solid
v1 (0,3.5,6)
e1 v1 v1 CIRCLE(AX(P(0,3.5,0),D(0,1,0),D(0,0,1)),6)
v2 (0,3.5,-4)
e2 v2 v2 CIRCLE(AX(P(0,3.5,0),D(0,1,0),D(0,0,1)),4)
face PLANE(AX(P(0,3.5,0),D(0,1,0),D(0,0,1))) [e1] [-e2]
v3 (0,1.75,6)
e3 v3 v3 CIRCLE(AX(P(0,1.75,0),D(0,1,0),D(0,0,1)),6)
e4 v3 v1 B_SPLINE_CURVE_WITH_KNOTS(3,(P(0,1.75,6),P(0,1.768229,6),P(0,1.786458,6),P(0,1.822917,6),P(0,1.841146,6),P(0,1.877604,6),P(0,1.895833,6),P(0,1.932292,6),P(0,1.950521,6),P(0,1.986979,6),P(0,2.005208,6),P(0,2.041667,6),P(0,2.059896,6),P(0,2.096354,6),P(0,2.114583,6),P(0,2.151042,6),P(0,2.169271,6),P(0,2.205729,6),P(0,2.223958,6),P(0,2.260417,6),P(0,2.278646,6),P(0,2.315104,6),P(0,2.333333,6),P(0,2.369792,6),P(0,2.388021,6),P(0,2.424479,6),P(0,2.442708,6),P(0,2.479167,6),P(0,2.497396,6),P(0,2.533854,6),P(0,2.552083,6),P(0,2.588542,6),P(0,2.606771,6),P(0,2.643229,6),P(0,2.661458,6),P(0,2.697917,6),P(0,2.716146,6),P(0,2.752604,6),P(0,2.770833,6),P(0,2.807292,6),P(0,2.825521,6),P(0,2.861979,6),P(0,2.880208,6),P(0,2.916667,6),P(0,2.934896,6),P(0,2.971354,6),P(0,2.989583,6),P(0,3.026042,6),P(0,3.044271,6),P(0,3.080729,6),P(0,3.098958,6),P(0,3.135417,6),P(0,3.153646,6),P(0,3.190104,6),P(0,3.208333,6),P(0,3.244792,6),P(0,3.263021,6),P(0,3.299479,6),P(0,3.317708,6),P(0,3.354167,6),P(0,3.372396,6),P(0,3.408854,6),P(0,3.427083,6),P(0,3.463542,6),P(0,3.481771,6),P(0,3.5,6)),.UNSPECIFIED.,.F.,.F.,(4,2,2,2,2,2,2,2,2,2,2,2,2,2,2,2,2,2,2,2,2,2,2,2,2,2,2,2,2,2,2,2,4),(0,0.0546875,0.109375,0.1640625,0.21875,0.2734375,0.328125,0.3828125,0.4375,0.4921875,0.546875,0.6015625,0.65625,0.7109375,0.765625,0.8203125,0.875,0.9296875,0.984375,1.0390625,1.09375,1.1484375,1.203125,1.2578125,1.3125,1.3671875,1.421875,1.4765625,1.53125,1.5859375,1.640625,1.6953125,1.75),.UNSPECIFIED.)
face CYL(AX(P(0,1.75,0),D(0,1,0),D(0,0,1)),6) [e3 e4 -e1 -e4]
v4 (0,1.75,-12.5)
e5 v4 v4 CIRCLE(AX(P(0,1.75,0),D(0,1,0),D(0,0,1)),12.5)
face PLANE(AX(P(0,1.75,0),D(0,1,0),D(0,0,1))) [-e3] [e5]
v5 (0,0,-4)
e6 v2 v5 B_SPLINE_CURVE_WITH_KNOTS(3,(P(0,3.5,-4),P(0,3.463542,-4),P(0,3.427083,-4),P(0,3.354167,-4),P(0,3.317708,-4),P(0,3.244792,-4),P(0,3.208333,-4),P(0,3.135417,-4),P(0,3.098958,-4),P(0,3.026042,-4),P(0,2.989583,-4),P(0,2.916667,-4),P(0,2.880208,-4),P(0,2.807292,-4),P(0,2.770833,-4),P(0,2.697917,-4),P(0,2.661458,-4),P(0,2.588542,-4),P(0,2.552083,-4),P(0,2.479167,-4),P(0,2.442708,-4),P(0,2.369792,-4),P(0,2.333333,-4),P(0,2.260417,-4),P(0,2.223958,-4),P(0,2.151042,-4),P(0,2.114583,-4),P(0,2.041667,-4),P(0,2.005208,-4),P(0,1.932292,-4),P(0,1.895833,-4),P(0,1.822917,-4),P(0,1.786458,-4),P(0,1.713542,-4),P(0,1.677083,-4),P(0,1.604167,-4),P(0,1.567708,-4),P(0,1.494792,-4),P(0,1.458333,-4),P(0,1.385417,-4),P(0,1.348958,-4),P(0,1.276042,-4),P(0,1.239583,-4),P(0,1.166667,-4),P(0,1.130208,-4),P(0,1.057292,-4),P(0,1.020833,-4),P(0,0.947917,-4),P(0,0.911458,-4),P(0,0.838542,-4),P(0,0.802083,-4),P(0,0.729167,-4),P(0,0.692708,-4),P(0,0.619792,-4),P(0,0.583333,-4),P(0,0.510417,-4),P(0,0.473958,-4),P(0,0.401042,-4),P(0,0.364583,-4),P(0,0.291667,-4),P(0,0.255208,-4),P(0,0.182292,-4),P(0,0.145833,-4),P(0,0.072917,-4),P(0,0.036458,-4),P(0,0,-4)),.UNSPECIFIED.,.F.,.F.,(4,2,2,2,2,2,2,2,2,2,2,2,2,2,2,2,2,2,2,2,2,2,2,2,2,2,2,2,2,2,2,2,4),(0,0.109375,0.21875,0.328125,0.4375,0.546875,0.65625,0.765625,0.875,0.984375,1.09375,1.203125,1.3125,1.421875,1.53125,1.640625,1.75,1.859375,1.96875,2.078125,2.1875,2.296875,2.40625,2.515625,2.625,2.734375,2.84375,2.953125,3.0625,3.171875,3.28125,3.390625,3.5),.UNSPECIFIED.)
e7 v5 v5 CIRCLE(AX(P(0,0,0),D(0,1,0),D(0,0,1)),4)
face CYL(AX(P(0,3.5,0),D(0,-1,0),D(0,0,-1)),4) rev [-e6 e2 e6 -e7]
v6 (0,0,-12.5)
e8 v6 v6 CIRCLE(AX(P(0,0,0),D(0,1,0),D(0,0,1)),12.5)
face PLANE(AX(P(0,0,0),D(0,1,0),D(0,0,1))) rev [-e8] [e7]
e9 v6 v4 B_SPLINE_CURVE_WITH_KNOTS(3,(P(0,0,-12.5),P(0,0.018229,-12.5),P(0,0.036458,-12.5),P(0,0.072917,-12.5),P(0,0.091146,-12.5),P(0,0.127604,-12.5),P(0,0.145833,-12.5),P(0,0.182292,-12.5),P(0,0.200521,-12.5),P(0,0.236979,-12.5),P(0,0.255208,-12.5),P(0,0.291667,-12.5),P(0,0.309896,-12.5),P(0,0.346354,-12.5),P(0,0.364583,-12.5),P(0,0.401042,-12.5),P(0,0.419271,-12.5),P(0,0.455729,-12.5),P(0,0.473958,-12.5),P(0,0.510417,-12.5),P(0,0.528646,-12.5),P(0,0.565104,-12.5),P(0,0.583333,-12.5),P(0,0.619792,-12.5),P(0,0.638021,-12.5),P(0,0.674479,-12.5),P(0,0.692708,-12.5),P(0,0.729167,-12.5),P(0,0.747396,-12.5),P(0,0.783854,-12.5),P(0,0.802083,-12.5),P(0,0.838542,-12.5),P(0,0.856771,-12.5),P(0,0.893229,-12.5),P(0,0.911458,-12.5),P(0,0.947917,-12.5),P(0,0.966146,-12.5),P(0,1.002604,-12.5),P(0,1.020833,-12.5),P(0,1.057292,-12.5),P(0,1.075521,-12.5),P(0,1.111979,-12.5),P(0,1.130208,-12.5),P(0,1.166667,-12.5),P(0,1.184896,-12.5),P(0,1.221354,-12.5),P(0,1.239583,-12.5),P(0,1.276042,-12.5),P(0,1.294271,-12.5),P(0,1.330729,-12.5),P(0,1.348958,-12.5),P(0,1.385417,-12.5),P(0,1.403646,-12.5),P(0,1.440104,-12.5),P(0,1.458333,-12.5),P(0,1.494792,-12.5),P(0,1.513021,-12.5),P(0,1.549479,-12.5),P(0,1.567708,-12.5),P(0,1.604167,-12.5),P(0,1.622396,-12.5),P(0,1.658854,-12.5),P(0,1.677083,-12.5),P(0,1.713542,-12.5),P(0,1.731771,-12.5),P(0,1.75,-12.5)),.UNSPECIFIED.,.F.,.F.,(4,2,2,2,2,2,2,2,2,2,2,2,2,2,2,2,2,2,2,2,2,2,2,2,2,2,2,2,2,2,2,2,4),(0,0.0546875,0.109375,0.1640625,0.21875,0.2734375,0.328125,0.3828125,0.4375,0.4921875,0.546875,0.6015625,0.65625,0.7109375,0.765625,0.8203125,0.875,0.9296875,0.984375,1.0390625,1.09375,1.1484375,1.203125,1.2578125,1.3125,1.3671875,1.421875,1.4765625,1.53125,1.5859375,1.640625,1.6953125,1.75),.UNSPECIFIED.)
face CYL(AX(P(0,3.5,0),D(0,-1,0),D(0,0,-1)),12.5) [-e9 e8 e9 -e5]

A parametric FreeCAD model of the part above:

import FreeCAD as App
import Part
import Sketcher
from FreeCAD import Vector
Q = App.Units.Quantity

doc = App.newDocument("Part")
body = doc.addObject("PartDesign::Body", "Body")

# Sketch on XZ plane
sketch1 = body.newObject("Sketcher::SketchObject", "Sketch")
sketch1.AttachmentSupport = (doc.getObject("XZ_Plane"), [""])
sketch1.MapMode = "FlatFace"
sketch1.addGeometry(Part.Circle(Vector(0, 0, 0), Vector(0, 0, 1), 12.5), False)
sketch1.addGeometry(Part.Circle(Vector(0, 0, 0), Vector(0, 0, 1), 4), False)
sketch1.addConstraint(Sketcher.Constraint("Coincident", 0, 3, -1, 1))
sketch1.addConstraint(Sketcher.Constraint("Coincident", 1, 3, -1, 1))
sketch1.addConstraint(Sketcher.Constraint("Diameter", 0, Q("25 mm")))
sketch1.addConstraint(Sketcher.Constraint("Diameter", 1, Q("8 mm")))
pad1 = body.newObject("PartDesign::Pad", "Pad")
pad1.Profile = sketch1
pad1.Length = 3.5
pad1.Reversed = True

# Sketch on XZ plane
sketch2 = body.newObject("Sketcher::SketchObject", "Sketch001")
sketch2.AttachmentSupport = (doc.getObject("XZ_Plane"), [""])
sketch2.MapMode = "FlatFace"
sketch2.AttachmentOffset = App.Placement(Vector(0, 0, -1.75), App.Rotation())
sketch2.addGeometry(Part.Circle(Vector(0, 0, 0), Vector(0, 0, 1), 12), False)
sketch2.addGeometry(Part.Circle(Vector(0, 0, 0), Vector(0, 0, 1), 6), False)
sketch2.addConstraint(Sketcher.Constraint("Coincident", 0, 3, -1, 1))
sketch2.addConstraint(Sketcher.Constraint("Coincident", 1, 3, -1, 1))
sketch2.addConstraint(Sketcher.Constraint("Diameter", 0, Q("25 mm")))
sketch2.addConstraint(Sketcher.Constraint("Diameter", 1, Q("12 mm")))
pocket1 = body.newObject("PartDesign::Pocket", "Pocket")
pocket1.Profile = sketch2
pocket1.Length = 1.75

doc.recompute()
